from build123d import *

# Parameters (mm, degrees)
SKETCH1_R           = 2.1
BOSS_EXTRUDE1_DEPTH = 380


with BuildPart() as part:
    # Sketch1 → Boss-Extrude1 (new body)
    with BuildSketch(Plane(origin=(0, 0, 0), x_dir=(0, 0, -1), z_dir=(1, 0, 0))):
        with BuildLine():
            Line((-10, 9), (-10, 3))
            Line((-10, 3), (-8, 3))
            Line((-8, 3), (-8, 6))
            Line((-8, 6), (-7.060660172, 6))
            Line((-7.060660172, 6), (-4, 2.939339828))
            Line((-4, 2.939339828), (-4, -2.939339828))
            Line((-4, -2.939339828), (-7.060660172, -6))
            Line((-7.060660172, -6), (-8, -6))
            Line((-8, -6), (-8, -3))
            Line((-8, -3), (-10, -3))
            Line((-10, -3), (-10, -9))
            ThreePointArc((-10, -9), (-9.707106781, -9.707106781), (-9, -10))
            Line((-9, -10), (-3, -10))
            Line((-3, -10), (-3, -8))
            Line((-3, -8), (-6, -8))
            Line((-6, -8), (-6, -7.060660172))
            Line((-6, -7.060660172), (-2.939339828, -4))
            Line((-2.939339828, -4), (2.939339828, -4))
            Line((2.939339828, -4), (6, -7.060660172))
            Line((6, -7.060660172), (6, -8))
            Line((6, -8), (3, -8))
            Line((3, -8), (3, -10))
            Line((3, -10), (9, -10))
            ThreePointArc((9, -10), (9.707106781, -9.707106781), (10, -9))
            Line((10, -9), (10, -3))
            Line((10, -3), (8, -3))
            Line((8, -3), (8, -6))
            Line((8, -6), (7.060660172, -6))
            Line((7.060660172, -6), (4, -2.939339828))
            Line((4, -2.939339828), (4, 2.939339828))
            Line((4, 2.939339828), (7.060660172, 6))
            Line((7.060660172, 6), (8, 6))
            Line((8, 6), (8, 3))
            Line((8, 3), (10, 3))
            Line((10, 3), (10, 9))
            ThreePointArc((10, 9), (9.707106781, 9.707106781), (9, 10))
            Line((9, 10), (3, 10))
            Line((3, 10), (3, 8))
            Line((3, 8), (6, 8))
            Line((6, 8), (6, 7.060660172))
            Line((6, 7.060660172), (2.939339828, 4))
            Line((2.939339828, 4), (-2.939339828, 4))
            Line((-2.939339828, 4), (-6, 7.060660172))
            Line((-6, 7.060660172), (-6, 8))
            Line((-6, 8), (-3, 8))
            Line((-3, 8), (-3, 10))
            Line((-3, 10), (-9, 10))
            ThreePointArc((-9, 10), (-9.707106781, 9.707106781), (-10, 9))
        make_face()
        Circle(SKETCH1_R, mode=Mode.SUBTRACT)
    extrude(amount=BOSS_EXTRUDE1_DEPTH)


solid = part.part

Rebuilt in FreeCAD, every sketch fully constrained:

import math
import FreeCAD as App
import Part
import Sketcher

V = App.Vector

doc = App.newDocument("Part")
params = doc.addObject("Spreadsheet::Sheet", "Params")
for row, (alias, value) in enumerate([
    ("sketch1_radius", "1 mm"),
    ("sketch1_diameter", "4.2 mm"),
    ("sketch1_width", "6 mm"),
    ("sketch1_width2", "3 mm"),
    ("sketch1_width3", "2 mm"),
    ("pad1_length", "380 mm"),
], start=1):
    params.set(f"A{row}", alias)
    params.set(f"B{row}", "=" + value)
    params.setAlias(f"B{row}", alias)

body = doc.addObject("PartDesign::Body", "Body")

# Sketch on YZ plane
sketch1 = body.newObject("Sketcher::SketchObject", "Sketch")
sketch1.AttachmentSupport = (doc.getObject("YZ_Plane"), [""])
sketch1.MapMode = "FlatFace"
sketch1.addGeometry([
    Part.LineSegment(V(9, 10, 0), V(3, 10, 0)),  # 0
    Part.LineSegment(V(3, 10, 0), V(3, 8, 0)),  # 1
    Part.LineSegment(V(3, 8, 0), V(6, 8, 0)),  # 2
    Part.LineSegment(V(6, 8, 0), V(6, 7.1, 0)),  # 3
    Part.LineSegment(V(6, 7.1, 0), V(2.9, 4, 0)),  # 4
    Part.LineSegment(V(2.9, 4, 0), V(-2.9, 4, 0)),  # 5
    Part.LineSegment(V(-2.9, 4, 0), V(-6, 7.1, 0)),  # 6
    Part.LineSegment(V(-6, 7.1, 0), V(-6, 8, 0)),  # 7
    Part.LineSegment(V(-6, 8, 0), V(-3, 8, 0)),  # 8
    Part.LineSegment(V(-3, 8, 0), V(-3, 10, 0)),  # 9
    Part.LineSegment(V(-3, 10, 0), V(-9, 10, 0)),  # 10
    Part.ArcOfCircle(Part.Circle(V(-9, 9, 0), V(0, 0, 1), 1), math.radians(90), math.radians(180)),  # 11
    Part.LineSegment(V(-10, 9, 0), V(-10, 3, 0)),  # 12
    Part.LineSegment(V(-10, 3, 0), V(-8, 3, 0)),  # 13
    Part.LineSegment(V(-8, 3, 0), V(-8, 6, 0)),  # 14
    Part.LineSegment(V(-8, 6, 0), V(-7.1, 6, 0)),  # 15
    Part.LineSegment(V(-7.1, 6, 0), V(-4, 2.9, 0)),  # 16
    Part.LineSegment(V(-4, 2.9, 0), V(-4, -2.9, 0)),  # 17
    Part.LineSegment(V(-4, -2.9, 0), V(-7.1, -6, 0)),  # 18
    Part.LineSegment(V(-7.1, -6, 0), V(-8, -6, 0)),  # 19
    Part.LineSegment(V(-8, -6, 0), V(-8, -3, 0)),  # 20
    Part.LineSegment(V(-8, -3, 0), V(-10, -3, 0)),  # 21
    Part.LineSegment(V(-10, -3, 0), V(-10, -9, 0)),  # 22
    Part.ArcOfCircle(Part.Circle(V(-9, -9, 0), V(0, 0, 1), 1), math.radians(-180), math.radians(-90)),  # 23
    Part.LineSegment(V(-9, -10, 0), V(-3, -10, 0)),  # 24
    Part.LineSegment(V(-3, -10, 0), V(-3, -8, 0)),  # 25
    Part.LineSegment(V(-3, -8, 0), V(-6, -8, 0)),  # 26
    Part.LineSegment(V(-6, -8, 0), V(-6, -7.1, 0)),  # 27
    Part.LineSegment(V(-6, -7.1, 0), V(-2.9, -4, 0)),  # 28
    Part.LineSegment(V(-2.9, -4, 0), V(2.9, -4, 0)),  # 29
    Part.LineSegment(V(2.9, -4, 0), V(6, -7.1, 0)),  # 30
    Part.LineSegment(V(6, -7.1, 0), V(6, -8, 0)),  # 31
    Part.LineSegment(V(6, -8, 0), V(3, -8, 0)),  # 32
    Part.LineSegment(V(3, -8, 0), V(3, -10, 0)),  # 33
    Part.LineSegment(V(3, -10, 0), V(9, -10, 0)),  # 34
    Part.ArcOfCircle(Part.Circle(V(9, -9, 0), V(0, 0, 1), 1), math.radians(-90), math.radians(0)),  # 35
    Part.LineSegment(V(10, -9, 0), V(10, -3, 0)),  # 36
    Part.LineSegment(V(10, -3, 0), V(8, -3, 0)),  # 37
    Part.LineSegment(V(8, -3, 0), V(8, -6, 0)),  # 38
    Part.LineSegment(V(8, -6, 0), V(7.1, -6, 0)),  # 39
    Part.LineSegment(V(7.1, -6, 0), V(4, -2.9, 0)),  # 40
    Part.LineSegment(V(4, -2.9, 0), V(4, 2.9, 0)),  # 41
    Part.LineSegment(V(4, 2.9, 0), V(7.1, 6, 0)),  # 42
    Part.LineSegment(V(7.1, 6, 0), V(8, 6, 0)),  # 43
    Part.LineSegment(V(8, 6, 0), V(8, 3, 0)),  # 44
    Part.LineSegment(V(8, 3, 0), V(10, 3, 0)),  # 45
    Part.LineSegment(V(10, 3, 0), V(10, 9, 0)),  # 46
    Part.ArcOfCircle(Part.Circle(V(9, 9, 0), V(0, 0, 1), 1), math.radians(0), math.radians(90)),  # 47
    Part.Circle(V(0, 0, 0), V(0, 0, 1), 2.1),  # 48
], False)
sketch1.addConstraint([
    Sketcher.Constraint("Coincident", 0, 2, 1, 1),
    Sketcher.Constraint("Coincident", 1, 2, 2, 1),
    Sketcher.Constraint("Coincident", 2, 2, 3, 1),
    Sketcher.Constraint("Coincident", 3, 2, 4, 1),
    Sketcher.Constraint("Coincident", 4, 2, 5, 1),
    Sketcher.Constraint("Coincident", 5, 2, 6, 1),
    Sketcher.Constraint("Coincident", 6, 2, 7, 1),
    Sketcher.Constraint("Coincident", 7, 2, 8, 1),
    Sketcher.Constraint("Coincident", 8, 2, 9, 1),
    Sketcher.Constraint("Coincident", 9, 2, 10, 1),
    Sketcher.Constraint("Tangent", 10, 2, 11, 1),
    Sketcher.Constraint("Tangent", 11, 2, 12, 1),
    Sketcher.Constraint("Coincident", 12, 2, 13, 1),
    Sketcher.Constraint("Coincident", 13, 2, 14, 1),
    Sketcher.Constraint("Coincident", 14, 2, 15, 1),
    Sketcher.Constraint("Coincident", 15, 2, 16, 1),
    Sketcher.Constraint("Coincident", 16, 2, 17, 1),
    Sketcher.Constraint("Coincident", 17, 2, 18, 1),
    Sketcher.Constraint("Coincident", 18, 2, 19, 1),
    Sketcher.Constraint("Coincident", 19, 2, 20, 1),
    Sketcher.Constraint("Coincident", 20, 2, 21, 1),
    Sketcher.Constraint("Coincident", 21, 2, 22, 1),
    Sketcher.Constraint("Tangent", 22, 2, 23, 1),
    Sketcher.Constraint("Tangent", 23, 2, 24, 1),
    Sketcher.Constraint("Coincident", 24, 2, 25, 1),
    Sketcher.Constraint("Coincident", 25, 2, 26, 1),
    Sketcher.Constraint("Coincident", 26, 2, 27, 1),
    Sketcher.Constraint("Coincident", 27, 2, 28, 1),
    Sketcher.Constraint("Coincident", 28, 2, 29, 1),
    Sketcher.Constraint("Coincident", 29, 2, 30, 1),
    Sketcher.Constraint("Coincident", 30, 2, 31, 1),
    Sketcher.Constraint("Coincident", 31, 2, 32, 1),
    Sketcher.Constraint("Coincident", 32, 2, 33, 1),
    Sketcher.Constraint("Coincident", 33, 2, 34, 1),
    Sketcher.Constraint("Tangent", 34, 2, 35, 1),
    Sketcher.Constraint("Tangent", 35, 2, 36, 1),
    Sketcher.Constraint("Coincident", 36, 2, 37, 1),
    Sketcher.Constraint("Coincident", 37, 2, 38, 1),
    Sketcher.Constraint("Coincident", 38, 2, 39, 1),
    Sketcher.Constraint("Coincident", 39, 2, 40, 1),
    Sketcher.Constraint("Coincident", 40, 2, 41, 1),
    Sketcher.Constraint("Coincident", 41, 2, 42, 1),
    Sketcher.Constraint("Coincident", 42, 2, 43, 1),
    Sketcher.Constraint("Coincident", 43, 2, 44, 1),
    Sketcher.Constraint("Coincident", 44, 2, 45, 1),
    Sketcher.Constraint("Coincident", 45, 2, 46, 1),
    Sketcher.Constraint("Tangent", 46, 2, 47, 1),
    Sketcher.Constraint("Tangent", 47, 2, 0, 1),
    Sketcher.Constraint("Horizontal", 0),
    Sketcher.Constraint("Vertical", 1),
    Sketcher.Constraint("Horizontal", 2),
    Sketcher.Constraint("Vertical", 3),
    Sketcher.Constraint("Horizontal", 5),
    Sketcher.Constraint("Vertical", 7),
    Sketcher.Constraint("Horizontal", 8),
    Sketcher.Constraint("Vertical", 9),
    Sketcher.Constraint("Horizontal", 10),
    Sketcher.Constraint("Vertical", 12),
    Sketcher.Constraint("Horizontal", 13),
    Sketcher.Constraint("Vertical", 14),
    Sketcher.Constraint("Horizontal", 15),
    Sketcher.Constraint("Vertical", 17),
    Sketcher.Constraint("Horizontal", 19),
    Sketcher.Constraint("Vertical", 20),
    Sketcher.Constraint("Horizontal", 21),
    Sketcher.Constraint("Vertical", 22),
    Sketcher.Constraint("Horizontal", 24),
    Sketcher.Constraint("Vertical", 25),
    Sketcher.Constraint("Horizontal", 26),
    Sketcher.Constraint("Vertical", 27),
    Sketcher.Constraint("Horizontal", 29),
    Sketcher.Constraint("Vertical", 31),
    Sketcher.Constraint("Horizontal", 32),
    Sketcher.Constraint("Vertical", 33),
    Sketcher.Constraint("Horizontal", 34),
    Sketcher.Constraint("Vertical", 36),
    Sketcher.Constraint("Horizontal", 37),
    Sketcher.Constraint("Vertical", 38),
    Sketcher.Constraint("Horizontal", 39),
    Sketcher.Constraint("Vertical", 41),
    Sketcher.Constraint("Horizontal", 43),
    Sketcher.Constraint("Vertical", 44),
    Sketcher.Constraint("Horizontal", 45),
    Sketcher.Constraint("Vertical", 46),
    Sketcher.Constraint("Coincident", 48, 3, -1, 1),
    Sketcher.Constraint("Equal", 11, 23),
    Sketcher.Constraint("Equal", 23, 35),
    Sketcher.Constraint("Equal", 35, 47),
    Sketcher.Constraint("Symmetric", 11, 3, 35, 3, -1, 1),
    Sketcher.Constraint("Symmetric", 23, 3, 47, 3, -1, 1),
    Sketcher.Constraint("Symmetric", 1, 2, 25, 2, -1, 1),
    Sketcher.Constraint("Symmetric", 3, 2, 27, 2, -1, 1),
    Sketcher.Constraint("Symmetric", 4, 2, 28, 2, -1, 1),
    Sketcher.Constraint("Symmetric", 6, 2, 30, 2, -1, 1),
    Sketcher.Constraint("Symmetric", 8, 2, 32, 2, -1, 1),
    Sketcher.Constraint("Symmetric", 13, 2, 37, 2, -1, 1),
    Sketcher.Constraint("Symmetric", 15, 2, 39, 2, -1, 1),
    Sketcher.Constraint("Symmetric", 16, 2, 40, 2, -1, 1),
    Sketcher.Constraint("Symmetric", 18, 2, 42, 2, -1, 1),
    Sketcher.Constraint("Symmetric", 20, 2, 44, 2, -1, 1),
    Sketcher.Constraint("Symmetric", 23, 3, 35, 3, -2),
    Sketcher.Constraint("Symmetric", 3, 2, 6, 2, -2),
    Sketcher.Constraint("Symmetric", 1, 2, 8, 2, -2),
    Sketcher.Constraint("Symmetric", 20, 2, 37, 2, -2),
    Sketcher.Constraint("Symmetric", 18, 2, 39, 2, -2),
    Sketcher.Constraint("Perpendicular", 4, 6),
    Sketcher.Constraint("Parallel", 6, 16),
    Sketcher.Constraint("Perpendicular", 16, 18),
    Sketcher.Constraint("Perpendicular", 28, 30),
    Sketcher.Constraint("Perpendicular", 40, 42),
    Sketcher.Constraint("Horizontal", 17, 2, 40, 2),
    Sketcher.Constraint("Equal", 45, 1),
    Sketcher.Constraint("Equal", 43, 3),
    Sketcher.Constraint("Equal", 34, 12),
    Sketcher.Constraint("Equal", 32, 14),
    Sketcher.Constraint("Equal", 29, 17),
    Sketcher.Constraint("Equal", 6, 16),
    Sketcher.Constraint("Radius", 11, 1.0),
    Sketcher.Constraint("Diameter", 48, 4.2),
    Sketcher.Constraint("DistanceX", 0, 2, 0, 1, 6.0),
    Sketcher.Constraint("DistanceX", 2, 1, 2, 2, 3.0),
    Sketcher.Constraint("DistanceX", 13, 1, 13, 2, 2.0),
    Sketcher.Constraint("DistanceX", 11, 3, -1, 1, 9.0),
    Sketcher.Constraint("DistanceY", -1, 1, 4, 2, 4.0),
    Sketcher.Constraint("DistanceX", 5, 2, 5, 1, 5.87868),
])
sketch1.setExpression("Constraints[117]", "Params.sketch1_radius")
sketch1.setExpression("Constraints[118]", "Params.sketch1_diameter")
sketch1.setExpression("Constraints[119]", "Params.sketch1_width")
sketch1.setExpression("Constraints[120]", "Params.sketch1_width2")
sketch1.setExpression("Constraints[121]", "Params.sketch1_width3")
pad1 = body.newObject("PartDesign::Pad", "Pad")
pad1.Profile = sketch1
pad1.setExpression("Length", "Params.pad1_length")

doc.recompute()
